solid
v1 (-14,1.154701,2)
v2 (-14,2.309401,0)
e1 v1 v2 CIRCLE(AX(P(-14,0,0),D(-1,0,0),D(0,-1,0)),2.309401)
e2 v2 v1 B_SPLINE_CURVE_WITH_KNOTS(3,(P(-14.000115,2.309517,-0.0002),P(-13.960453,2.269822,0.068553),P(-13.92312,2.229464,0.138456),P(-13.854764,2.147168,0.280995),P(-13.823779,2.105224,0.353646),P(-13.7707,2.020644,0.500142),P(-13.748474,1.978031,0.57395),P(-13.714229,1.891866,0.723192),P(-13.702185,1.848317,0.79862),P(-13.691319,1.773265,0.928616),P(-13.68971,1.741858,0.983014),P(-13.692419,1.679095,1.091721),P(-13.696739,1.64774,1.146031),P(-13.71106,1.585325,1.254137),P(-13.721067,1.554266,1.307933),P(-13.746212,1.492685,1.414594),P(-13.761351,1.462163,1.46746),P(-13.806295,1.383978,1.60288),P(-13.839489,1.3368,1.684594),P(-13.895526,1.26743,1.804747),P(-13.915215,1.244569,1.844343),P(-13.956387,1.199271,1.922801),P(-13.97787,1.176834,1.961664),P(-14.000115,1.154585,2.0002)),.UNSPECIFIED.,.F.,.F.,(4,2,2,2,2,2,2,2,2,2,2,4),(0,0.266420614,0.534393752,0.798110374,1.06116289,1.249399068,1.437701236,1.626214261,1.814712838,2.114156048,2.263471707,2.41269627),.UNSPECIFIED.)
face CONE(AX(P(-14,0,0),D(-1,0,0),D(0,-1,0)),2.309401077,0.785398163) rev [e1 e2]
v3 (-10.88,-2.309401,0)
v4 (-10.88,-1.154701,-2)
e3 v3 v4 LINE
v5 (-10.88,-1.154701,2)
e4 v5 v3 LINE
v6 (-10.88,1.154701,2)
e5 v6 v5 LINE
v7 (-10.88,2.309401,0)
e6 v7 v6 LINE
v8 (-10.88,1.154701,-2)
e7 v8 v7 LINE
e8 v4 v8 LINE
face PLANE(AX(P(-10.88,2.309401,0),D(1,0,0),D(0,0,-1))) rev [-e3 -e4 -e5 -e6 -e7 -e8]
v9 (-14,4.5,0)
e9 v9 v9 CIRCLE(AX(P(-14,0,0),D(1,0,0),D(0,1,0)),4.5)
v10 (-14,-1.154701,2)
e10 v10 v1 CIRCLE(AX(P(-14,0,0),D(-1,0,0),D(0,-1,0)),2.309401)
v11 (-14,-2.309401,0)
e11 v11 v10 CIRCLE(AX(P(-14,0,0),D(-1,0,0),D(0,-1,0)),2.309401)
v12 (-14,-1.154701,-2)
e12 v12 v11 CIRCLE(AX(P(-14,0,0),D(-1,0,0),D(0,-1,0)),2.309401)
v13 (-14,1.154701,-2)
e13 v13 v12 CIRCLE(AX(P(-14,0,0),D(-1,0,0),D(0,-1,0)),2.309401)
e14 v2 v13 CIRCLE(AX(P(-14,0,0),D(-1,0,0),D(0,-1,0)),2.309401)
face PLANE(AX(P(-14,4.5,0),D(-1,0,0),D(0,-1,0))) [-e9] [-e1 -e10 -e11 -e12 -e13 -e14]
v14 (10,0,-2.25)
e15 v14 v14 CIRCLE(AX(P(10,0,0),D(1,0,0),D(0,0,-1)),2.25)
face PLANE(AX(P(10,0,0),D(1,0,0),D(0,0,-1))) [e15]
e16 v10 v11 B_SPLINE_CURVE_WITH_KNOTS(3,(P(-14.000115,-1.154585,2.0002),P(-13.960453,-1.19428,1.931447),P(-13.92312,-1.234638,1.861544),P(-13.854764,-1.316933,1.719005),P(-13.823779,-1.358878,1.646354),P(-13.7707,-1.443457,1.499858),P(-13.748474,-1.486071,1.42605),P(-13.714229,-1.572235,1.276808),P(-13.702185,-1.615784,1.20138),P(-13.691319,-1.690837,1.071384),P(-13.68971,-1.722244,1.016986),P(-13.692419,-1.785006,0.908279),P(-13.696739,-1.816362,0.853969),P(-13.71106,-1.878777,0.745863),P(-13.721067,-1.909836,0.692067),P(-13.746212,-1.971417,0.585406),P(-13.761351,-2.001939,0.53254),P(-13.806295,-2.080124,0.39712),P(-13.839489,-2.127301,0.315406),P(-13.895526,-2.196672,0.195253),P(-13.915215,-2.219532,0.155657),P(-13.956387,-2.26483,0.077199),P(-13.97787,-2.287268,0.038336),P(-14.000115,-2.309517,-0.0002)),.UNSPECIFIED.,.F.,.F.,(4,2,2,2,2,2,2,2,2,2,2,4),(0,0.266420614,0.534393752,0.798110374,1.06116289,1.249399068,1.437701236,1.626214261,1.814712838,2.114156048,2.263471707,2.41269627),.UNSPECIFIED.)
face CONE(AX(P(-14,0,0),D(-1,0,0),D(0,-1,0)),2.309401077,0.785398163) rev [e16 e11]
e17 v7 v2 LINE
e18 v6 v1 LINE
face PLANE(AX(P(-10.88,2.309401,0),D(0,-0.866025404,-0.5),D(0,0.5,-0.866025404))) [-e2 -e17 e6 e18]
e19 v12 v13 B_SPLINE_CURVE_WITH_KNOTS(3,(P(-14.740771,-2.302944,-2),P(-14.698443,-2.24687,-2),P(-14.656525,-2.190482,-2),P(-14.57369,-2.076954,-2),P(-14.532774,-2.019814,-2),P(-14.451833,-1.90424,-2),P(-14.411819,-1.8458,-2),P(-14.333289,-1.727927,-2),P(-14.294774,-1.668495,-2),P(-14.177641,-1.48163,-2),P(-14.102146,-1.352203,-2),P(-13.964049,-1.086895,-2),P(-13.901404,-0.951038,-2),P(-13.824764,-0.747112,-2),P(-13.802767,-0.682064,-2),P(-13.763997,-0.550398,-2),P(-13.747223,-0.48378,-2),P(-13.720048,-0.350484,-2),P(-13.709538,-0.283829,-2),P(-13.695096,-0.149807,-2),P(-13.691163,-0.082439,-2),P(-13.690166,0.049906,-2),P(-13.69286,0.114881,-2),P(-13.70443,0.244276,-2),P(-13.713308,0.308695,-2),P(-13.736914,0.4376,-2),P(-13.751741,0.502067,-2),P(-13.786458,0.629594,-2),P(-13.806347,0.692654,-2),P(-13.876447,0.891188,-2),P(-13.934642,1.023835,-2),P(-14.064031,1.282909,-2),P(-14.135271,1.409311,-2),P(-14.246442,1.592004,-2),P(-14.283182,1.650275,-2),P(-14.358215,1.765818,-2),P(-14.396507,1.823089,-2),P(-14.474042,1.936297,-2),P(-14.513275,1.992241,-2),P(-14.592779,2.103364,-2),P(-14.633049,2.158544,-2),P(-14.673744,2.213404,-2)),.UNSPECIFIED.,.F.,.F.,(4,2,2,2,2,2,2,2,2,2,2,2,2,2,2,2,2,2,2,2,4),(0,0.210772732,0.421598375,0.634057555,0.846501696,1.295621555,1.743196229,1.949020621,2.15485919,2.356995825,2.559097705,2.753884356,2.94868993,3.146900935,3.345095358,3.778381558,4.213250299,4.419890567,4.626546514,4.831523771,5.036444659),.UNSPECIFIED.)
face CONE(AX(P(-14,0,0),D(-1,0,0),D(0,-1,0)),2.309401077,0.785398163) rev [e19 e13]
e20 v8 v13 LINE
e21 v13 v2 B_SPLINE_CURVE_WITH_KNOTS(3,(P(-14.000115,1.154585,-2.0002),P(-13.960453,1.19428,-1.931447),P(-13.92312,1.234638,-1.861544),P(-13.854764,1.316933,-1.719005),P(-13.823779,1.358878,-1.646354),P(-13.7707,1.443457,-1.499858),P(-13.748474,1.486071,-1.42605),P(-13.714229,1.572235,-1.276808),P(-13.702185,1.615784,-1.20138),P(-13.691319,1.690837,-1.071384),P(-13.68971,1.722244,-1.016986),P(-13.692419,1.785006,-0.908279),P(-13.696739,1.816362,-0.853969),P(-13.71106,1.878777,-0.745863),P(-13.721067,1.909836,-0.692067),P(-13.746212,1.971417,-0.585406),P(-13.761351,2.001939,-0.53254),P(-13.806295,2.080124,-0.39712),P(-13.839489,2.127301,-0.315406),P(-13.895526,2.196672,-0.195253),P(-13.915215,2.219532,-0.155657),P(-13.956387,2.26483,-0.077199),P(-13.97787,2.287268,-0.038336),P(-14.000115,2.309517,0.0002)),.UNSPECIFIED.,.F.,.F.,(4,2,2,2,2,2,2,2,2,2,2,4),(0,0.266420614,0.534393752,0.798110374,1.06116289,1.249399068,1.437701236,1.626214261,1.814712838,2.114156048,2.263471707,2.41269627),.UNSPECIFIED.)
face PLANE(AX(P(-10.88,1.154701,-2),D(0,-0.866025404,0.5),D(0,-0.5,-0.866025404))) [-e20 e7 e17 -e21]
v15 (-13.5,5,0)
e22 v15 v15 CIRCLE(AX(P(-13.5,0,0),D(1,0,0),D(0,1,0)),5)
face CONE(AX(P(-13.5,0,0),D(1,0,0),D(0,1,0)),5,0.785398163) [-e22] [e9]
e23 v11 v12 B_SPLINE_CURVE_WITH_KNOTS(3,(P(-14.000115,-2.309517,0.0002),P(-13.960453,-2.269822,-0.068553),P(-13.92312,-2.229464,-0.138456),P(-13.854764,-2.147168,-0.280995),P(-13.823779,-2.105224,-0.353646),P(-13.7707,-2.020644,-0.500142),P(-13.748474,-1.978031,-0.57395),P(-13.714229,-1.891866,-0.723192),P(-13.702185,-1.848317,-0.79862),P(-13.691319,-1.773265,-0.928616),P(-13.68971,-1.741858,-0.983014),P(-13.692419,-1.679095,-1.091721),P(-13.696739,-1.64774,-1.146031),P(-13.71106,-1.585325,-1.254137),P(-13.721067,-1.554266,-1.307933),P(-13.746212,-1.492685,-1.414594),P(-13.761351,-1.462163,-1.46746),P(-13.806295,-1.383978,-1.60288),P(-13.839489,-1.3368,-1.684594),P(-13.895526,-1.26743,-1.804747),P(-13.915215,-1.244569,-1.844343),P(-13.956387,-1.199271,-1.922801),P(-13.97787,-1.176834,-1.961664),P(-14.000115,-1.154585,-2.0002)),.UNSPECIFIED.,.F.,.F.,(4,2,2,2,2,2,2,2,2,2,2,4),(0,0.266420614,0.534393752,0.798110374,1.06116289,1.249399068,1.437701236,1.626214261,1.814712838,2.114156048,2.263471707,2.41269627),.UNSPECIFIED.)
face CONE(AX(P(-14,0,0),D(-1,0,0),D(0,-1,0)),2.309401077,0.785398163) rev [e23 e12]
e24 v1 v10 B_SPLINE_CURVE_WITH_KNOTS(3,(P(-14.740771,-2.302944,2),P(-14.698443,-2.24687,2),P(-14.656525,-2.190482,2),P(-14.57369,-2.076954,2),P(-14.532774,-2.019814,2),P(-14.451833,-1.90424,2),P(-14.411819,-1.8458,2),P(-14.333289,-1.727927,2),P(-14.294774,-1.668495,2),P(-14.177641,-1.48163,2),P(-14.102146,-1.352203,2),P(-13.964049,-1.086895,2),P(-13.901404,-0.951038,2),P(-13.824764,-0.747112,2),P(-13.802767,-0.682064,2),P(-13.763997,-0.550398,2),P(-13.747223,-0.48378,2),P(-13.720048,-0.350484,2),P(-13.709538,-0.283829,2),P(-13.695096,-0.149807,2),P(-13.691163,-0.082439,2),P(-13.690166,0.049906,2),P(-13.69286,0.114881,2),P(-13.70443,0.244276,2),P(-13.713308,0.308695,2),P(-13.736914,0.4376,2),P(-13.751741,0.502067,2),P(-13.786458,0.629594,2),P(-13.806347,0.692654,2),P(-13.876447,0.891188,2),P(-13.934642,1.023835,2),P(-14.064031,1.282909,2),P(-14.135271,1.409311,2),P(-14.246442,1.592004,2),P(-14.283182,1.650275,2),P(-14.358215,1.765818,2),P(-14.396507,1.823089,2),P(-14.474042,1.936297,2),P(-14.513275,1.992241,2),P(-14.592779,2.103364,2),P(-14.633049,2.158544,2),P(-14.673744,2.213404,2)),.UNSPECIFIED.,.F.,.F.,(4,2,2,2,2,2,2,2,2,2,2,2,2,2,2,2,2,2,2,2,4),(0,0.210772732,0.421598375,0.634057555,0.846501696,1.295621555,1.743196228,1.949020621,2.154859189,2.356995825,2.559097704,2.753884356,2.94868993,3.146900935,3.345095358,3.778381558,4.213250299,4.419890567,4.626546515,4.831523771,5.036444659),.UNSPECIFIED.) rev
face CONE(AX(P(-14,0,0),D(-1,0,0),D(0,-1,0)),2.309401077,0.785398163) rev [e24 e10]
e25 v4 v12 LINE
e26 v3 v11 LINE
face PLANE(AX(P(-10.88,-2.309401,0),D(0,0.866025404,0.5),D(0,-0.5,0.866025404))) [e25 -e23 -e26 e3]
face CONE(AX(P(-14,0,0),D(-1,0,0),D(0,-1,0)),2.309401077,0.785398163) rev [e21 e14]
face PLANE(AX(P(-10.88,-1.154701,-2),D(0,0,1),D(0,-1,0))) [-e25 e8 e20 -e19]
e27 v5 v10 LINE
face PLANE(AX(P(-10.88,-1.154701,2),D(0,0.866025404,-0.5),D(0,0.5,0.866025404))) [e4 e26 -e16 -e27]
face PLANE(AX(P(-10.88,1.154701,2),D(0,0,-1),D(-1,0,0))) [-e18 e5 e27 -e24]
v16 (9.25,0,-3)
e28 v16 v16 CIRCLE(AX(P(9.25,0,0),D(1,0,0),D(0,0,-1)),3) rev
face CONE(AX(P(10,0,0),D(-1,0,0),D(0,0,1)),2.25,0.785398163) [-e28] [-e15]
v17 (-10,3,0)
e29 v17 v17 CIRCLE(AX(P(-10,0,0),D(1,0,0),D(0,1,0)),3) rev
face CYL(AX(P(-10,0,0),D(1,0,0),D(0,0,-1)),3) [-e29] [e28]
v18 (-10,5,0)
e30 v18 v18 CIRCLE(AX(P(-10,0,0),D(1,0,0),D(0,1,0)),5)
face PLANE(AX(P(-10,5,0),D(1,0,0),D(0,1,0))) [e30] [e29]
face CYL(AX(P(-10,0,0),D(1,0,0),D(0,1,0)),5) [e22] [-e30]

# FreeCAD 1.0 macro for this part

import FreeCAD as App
import Part
import Sketcher
from FreeCAD import Vector
Q = App.Units.Quantity


def edges_at(feature, points):
    """Names of the edges that pass closest to the given points."""
    edges = feature.Shape.Edges
    near = lambda p: min(range(len(edges)), key=lambda i: edges[i].distToShape(Part.Vertex(*p))[0])
    return sorted({f"Edge{near(p) + 1}" for p in points})

doc = App.newDocument("Part")
body = doc.addObject("PartDesign::Body", "Body")

sketch1 = body.newObject("Sketcher::SketchObject", "Sketch")
sketch1.AttachmentSupport = (doc.getObject("YZ_Plane"), [""])
sketch1.MapMode = "FlatFace"
sketch1.AttachmentOffset = App.Placement(Vector(0, 0, 10), App.Rotation())
sketch1.addGeometry(Part.Circle(Vector(0, 0, 0), Vector(0, 0, 1), 3), False)
sketch1.addConstraint(Sketcher.Constraint("Coincident", 0, 3, -1, 1))
sketch1.addConstraint(Sketcher.Constraint("Diameter", 0, 6.0))
pad1 = body.newObject("PartDesign::Pad", "Pad")
pad1.Profile = sketch1
pad1.Length = 20
pad1.Reversed = True
doc.recompute()

chamfer = body.newObject("PartDesign::Chamfer", "Chamfer")
chamfer.Base = (pad1, edges_at(pad1, [(10, 0, 3)]))
chamfer.Size = 0.75

sketch2 = body.newObject("Sketcher::SketchObject", "Sketch001")
sketch2.AttachmentSupport = (doc.getObject("XY_Plane"), [""])
sketch2.MapMode = "FlatFace"
sketch2.addGeometry(Part.LineSegment(Vector(-13.5, 5, 0), Vector(-14, 4.5, 0)), False)
sketch2.addGeometry(Part.LineSegment(Vector(-14, 4.5, 0), Vector(-14, 0, 0)), False)
sketch2.addGeometry(Part.LineSegment(Vector(-14, 0, 0), Vector(-10, 0, 0)), False)
sketch2.addGeometry(Part.LineSegment(Vector(-10, 0, 0), Vector(-10, 5, 0)), False)
sketch2.addGeometry(Part.LineSegment(Vector(-10, 5, 0), Vector(-13.5, 5, 0)), False)
sketch2.addConstraint(Sketcher.Constraint("Coincident", 0, 2, 1, 1))
sketch2.addConstraint(Sketcher.Constraint("Coincident", 1, 2, 2, 1))
sketch2.addConstraint(Sketcher.Constraint("Coincident", 2, 2, 3, 1))
sketch2.addConstraint(Sketcher.Constraint("Coincident", 3, 2, 4, 1))
sketch2.addConstraint(Sketcher.Constraint("Coincident", 4, 2, 0, 1))
sketch2.addConstraint(Sketcher.Constraint("Vertical", 1))
sketch2.addConstraint(Sketcher.Constraint("Horizontal", 2))
sketch2.addConstraint(Sketcher.Constraint("Vertical", 3))
sketch2.addConstraint(Sketcher.Constraint("Horizontal", 4))
sketch2.addConstraint(Sketcher.Constraint("PointOnObject", 1, 2, -1))
sketch2.addConstraint(Sketcher.Constraint("DistanceX", 2, 1, 2, 2, 4.0))
sketch2.addConstraint(Sketcher.Constraint("DistanceY", 3, 1, 3, 2, 5.0))
sketch2.addConstraint(Sketcher.Constraint("Angle", 0, Q("-135 deg")))
sketch2.addConstraint(Sketcher.Constraint("DistanceX", 4, 2, 4, 1, 3.5))
sketch2.addConstraint(Sketcher.Constraint("DistanceX", 0, 2, -1, 1, 14.0))
revolution = body.newObject("PartDesign::Revolution", "Revolution")
revolution.Profile = sketch2
revolution.ReferenceAxis = (sketch2, ["H_Axis"])
revolution.Angle = 360

sketch3 = body.newObject("Sketcher::SketchObject", "Sketch002")
sketch3.AttachmentSupport = (doc.getObject("YZ_Plane"), [""])
sketch3.MapMode = "FlatFace"
sketch3.AttachmentOffset = App.Placement(Vector(0, 0, -14), App.Rotation())
sketch3.addGeometry(Part.LineSegment(Vector(2.309401, 0, 0), Vector(1.154701, 2, 0)), False)
sketch3.addGeometry(Part.LineSegment(Vector(1.154701, 2, 0), Vector(-1.154701, 2, 0)), False)
sketch3.addGeometry(Part.LineSegment(Vector(-1.154701, 2, 0), Vector(-2.309401, 0, 0)), False)
sketch3.addGeometry(Part.LineSegment(Vector(-2.309401, 0, 0), Vector(-1.154701, -2, 0)), False)
sketch3.addGeometry(Part.LineSegment(Vector(-1.154701, -2, 0), Vector(1.154701, -2, 0)), False)
sketch3.addGeometry(Part.LineSegment(Vector(1.154701, -2, 0), Vector(2.309401, 0, 0)), False)
sketch3.addConstraint(Sketcher.Constraint("Coincident", 0, 2, 1, 1))
sketch3.addConstraint(Sketcher.Constraint("Coincident", 1, 2, 2, 1))
sketch3.addConstraint(Sketcher.Constraint("Coincident", 2, 2, 3, 1))
sketch3.addConstraint(Sketcher.Constraint("Coincident", 3, 2, 4, 1))
sketch3.addConstraint(Sketcher.Constraint("Coincident", 4, 2, 5, 1))
sketch3.addConstraint(Sketcher.Constraint("Coincident", 5, 2, 0, 1))
sketch3.addConstraint(Sketcher.Constraint("Horizontal", 1))
sketch3.addConstraint(Sketcher.Constraint("Horizontal", 4))
sketch3.addConstraint(Sketcher.Constraint("Symmetric", 0, 2, 3, 2, -1, 1))
sketch3.addConstraint(Sketcher.Constraint("Symmetric", 2, 2, 5, 2, -1, 1))
sketch3.addConstraint(Sketcher.Constraint("PointOnObject", 2, 2, -1))
sketch3.addConstraint(Sketcher.Constraint("Parallel", 2, 5))
sketch3.addConstraint(Sketcher.Constraint("Vertical", 1, 2, 3, 2))
sketch3.addConstraint(Sketcher.Constraint("Angle", 0, Q("120 deg")))
sketch3.addConstraint(Sketcher.Constraint("DistanceY", -1, 1, 0, 2, 2.0))
sketch3.addConstraint(Sketcher.Constraint("DistanceX", 1, 2, 1, 1, 2.309401))
pocket1 = body.newObject("PartDesign::Pocket", "Pocket")
pocket1.Profile = sketch3
pocket1.Length = 3.12
pocket1.Reversed = True

sketch4 = body.newObject("Sketcher::SketchObject", "Sketch003")
sketch4.AttachmentSupport = (doc.getObject("XZ_Plane"), [""])
sketch4.MapMode = "FlatFace"
sketch4.addGeometry(Part.LineSegment(Vector(-14, 0, 0), Vector(-14, 2.309401, 0)), False)
sketch4.addGeometry(Part.LineSegment(Vector(-14, 2.309401, 0), Vector(-11.690599, 0, 0)), False)
sketch4.addGeometry(Part.LineSegment(Vector(-11.690599, 0, 0), Vector(-14, 0, 0)), False)
sketch4.addConstraint(Sketcher.Constraint("Coincident", 0, 2, 1, 1))
sketch4.addConstraint(Sketcher.Constraint("Coincident", 1, 2, 2, 1))
sketch4.addConstraint(Sketcher.Constraint("Coincident", 2, 2, 0, 1))
sketch4.addConstraint(Sketcher.Constraint("Vertical", 0))
sketch4.addConstraint(Sketcher.Constraint("Horizontal", 2))
sketch4.addConstraint(Sketcher.Constraint("PointOnObject", 1, 2, -1))
sketch4.addConstraint(Sketcher.Constraint("Equal", 2, 0))
sketch4.addConstraint(Sketcher.Constraint("DistanceX", 0, 2, -1, 1, 14.0))
sketch4.addConstraint(Sketcher.Constraint("DistanceX", 2, 2, 2, 1, 2.309401))
groove = body.newObject("PartDesign::Groove", "Groove")
groove.Profile = sketch4
groove.ReferenceAxis = (sketch4, ["H_Axis"])
groove.Angle = 360

doc.recompute()
